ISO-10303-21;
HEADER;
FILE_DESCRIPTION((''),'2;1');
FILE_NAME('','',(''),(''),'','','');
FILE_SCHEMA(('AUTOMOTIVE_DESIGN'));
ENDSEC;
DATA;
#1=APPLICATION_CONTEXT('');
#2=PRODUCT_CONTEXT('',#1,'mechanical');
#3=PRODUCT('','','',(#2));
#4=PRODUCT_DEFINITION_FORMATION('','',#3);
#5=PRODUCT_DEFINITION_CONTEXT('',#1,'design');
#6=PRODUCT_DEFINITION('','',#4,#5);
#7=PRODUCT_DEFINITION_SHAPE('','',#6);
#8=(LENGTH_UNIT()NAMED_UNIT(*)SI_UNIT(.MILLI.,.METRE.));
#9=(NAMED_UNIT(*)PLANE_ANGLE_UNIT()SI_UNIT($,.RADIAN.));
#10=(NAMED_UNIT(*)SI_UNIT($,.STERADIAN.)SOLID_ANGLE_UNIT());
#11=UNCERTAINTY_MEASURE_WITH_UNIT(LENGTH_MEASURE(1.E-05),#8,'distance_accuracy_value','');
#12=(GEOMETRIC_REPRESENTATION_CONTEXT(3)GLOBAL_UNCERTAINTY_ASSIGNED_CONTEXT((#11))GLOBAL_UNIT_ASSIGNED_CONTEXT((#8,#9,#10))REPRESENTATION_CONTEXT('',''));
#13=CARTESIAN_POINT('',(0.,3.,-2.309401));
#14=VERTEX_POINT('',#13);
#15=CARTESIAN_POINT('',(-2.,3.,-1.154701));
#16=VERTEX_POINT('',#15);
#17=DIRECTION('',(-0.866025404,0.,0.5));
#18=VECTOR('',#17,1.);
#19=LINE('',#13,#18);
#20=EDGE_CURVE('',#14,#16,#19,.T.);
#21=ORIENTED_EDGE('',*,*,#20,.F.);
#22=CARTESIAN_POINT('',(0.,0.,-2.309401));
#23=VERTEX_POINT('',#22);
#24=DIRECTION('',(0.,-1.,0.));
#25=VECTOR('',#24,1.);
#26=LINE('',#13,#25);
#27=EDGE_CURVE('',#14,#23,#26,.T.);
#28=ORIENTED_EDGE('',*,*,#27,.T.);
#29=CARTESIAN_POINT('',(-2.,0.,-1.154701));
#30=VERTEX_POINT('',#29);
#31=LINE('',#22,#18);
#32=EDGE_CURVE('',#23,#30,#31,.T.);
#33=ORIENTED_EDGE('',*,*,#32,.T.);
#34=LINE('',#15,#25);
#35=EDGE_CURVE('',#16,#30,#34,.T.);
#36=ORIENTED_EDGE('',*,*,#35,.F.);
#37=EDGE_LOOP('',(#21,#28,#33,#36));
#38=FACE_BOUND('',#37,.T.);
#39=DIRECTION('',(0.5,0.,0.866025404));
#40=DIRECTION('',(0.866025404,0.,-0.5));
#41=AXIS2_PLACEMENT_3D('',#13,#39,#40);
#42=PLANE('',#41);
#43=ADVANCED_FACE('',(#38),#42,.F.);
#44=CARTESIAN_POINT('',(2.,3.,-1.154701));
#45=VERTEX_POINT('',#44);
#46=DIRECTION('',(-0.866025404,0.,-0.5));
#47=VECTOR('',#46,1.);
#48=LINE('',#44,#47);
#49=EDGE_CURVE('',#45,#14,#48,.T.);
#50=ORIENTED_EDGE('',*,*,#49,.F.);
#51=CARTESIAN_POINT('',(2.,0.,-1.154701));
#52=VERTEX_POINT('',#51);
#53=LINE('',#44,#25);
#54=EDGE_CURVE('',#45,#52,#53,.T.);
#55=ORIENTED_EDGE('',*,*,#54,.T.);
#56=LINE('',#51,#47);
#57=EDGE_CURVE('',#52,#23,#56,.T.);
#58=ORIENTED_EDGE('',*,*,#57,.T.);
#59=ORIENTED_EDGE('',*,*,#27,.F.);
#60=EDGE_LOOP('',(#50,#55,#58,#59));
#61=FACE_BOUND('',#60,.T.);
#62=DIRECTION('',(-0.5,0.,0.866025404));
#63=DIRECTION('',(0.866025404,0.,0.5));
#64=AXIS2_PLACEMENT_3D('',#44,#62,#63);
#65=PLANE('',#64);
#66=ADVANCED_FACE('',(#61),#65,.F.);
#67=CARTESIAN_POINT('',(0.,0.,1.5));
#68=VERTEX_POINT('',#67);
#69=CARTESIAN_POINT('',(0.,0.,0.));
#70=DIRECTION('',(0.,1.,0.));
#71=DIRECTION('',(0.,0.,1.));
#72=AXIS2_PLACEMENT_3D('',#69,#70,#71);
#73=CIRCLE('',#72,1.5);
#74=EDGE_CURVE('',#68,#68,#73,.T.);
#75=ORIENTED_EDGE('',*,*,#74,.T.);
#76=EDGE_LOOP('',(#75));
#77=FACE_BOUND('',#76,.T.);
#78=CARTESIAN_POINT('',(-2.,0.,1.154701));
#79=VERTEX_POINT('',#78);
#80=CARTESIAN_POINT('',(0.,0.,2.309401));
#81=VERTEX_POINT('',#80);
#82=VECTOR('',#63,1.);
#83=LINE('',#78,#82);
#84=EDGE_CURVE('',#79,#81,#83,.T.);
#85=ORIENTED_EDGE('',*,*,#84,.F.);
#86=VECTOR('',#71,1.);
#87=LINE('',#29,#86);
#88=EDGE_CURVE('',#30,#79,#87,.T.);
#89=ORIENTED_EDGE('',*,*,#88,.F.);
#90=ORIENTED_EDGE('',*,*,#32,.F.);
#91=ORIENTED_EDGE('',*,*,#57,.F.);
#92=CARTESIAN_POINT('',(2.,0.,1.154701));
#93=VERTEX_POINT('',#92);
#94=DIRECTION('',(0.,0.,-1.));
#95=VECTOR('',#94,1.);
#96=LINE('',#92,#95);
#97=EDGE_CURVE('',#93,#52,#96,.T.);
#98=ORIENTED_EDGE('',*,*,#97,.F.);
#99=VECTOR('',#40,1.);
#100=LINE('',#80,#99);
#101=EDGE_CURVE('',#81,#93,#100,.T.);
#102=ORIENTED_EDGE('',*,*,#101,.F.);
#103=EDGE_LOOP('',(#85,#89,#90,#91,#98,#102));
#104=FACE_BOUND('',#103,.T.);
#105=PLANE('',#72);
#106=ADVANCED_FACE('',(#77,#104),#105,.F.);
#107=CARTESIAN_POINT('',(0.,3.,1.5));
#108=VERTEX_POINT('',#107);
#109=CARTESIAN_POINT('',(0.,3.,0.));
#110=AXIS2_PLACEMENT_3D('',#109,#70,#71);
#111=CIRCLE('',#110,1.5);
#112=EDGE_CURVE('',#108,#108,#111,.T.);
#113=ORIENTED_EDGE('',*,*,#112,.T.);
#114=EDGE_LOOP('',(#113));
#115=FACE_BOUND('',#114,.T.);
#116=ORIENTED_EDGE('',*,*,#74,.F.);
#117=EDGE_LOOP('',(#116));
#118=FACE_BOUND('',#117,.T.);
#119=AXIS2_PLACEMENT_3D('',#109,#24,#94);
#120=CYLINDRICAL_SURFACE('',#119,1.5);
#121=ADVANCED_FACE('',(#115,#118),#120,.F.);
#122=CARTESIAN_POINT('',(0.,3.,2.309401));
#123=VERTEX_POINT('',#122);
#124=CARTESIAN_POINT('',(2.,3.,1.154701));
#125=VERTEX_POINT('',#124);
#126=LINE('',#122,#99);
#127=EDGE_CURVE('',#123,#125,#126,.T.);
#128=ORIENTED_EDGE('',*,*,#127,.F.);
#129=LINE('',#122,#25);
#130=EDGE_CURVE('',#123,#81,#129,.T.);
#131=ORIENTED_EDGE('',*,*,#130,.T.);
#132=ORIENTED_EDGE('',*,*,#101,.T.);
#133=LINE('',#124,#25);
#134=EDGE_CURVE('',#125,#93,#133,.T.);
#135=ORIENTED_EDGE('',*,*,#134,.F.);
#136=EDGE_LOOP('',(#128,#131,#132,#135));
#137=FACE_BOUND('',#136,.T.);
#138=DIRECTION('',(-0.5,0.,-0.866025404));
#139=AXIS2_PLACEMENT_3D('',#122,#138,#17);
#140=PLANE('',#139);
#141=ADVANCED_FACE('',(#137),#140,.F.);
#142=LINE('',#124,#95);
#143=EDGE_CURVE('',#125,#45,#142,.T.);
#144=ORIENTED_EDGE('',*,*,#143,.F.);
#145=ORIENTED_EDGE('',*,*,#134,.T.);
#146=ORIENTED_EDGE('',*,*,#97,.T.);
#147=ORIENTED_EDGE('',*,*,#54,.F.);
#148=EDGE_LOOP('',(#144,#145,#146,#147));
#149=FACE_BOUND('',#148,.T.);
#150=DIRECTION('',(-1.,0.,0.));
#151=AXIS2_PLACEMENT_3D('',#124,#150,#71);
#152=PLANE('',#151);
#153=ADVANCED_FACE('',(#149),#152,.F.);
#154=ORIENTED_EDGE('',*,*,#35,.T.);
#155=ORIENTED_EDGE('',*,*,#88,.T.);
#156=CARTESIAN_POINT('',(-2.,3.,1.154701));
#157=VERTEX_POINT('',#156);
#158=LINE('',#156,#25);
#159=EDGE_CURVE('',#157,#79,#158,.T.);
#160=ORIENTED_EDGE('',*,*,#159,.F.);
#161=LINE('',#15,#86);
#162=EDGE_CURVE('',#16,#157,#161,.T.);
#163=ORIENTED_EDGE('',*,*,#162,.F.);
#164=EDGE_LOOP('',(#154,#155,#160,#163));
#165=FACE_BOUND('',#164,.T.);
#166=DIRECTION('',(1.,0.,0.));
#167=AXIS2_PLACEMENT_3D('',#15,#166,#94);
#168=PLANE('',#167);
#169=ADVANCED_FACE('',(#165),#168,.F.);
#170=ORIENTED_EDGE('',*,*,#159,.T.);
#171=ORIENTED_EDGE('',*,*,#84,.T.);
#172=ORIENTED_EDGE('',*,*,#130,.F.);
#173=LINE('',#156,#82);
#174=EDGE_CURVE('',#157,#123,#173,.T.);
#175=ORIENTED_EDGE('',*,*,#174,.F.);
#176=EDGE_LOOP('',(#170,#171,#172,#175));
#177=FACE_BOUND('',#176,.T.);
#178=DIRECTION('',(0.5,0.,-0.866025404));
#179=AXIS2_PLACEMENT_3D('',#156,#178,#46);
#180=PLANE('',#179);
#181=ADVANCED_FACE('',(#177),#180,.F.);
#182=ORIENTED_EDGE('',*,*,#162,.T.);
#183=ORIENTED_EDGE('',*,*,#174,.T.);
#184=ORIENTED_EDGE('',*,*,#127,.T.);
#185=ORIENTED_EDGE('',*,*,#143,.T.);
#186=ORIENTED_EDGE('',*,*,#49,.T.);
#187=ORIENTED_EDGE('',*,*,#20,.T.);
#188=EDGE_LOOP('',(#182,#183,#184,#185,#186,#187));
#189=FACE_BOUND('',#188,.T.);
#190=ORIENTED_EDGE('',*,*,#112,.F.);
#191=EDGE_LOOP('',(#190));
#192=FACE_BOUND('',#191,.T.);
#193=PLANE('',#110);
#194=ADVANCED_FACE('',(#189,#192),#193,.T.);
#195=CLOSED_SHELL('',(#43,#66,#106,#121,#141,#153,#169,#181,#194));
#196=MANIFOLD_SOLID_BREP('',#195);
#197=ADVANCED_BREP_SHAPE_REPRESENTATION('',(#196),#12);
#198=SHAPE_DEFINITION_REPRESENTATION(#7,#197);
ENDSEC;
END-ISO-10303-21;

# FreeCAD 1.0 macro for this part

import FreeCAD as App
import Part
import Sketcher
Q = App.Units.Quantity


def add_polygon(sketch, points):
    """Adds a closed chain of lines whose ends are joined by coincident constraints."""
    first, n = sketch.GeometryCount, len(points)
    for a, b in zip(points, points[1:] + points[:1]):
        sketch.addGeometry(Part.LineSegment(App.Vector(*a, 0), App.Vector(*b, 0)), False)
    for i in range(n):
        sketch.addConstraint(Sketcher.Constraint("Coincident", first + i, 2, first + (i + 1) % n, 1))

doc = App.newDocument("Part")
body = doc.addObject("PartDesign::Body", "Body")

# Sketch on XZ plane
sketch1 = doc.addObject("Sketcher::SketchObject", "Sketch")
body.addObject(sketch1)
sketch1.AttachmentSupport = (doc.XZ_Plane, [""])
sketch1.MapMode = "FlatFace"
add_polygon(sketch1, [(0, -2.309401), (-2, -1.154701), (-2, 1.154701), (0, 2.309401), (2, 1.154701), (2, -1.154701)])  # lines 0-5
sketch1.addGeometry(Part.Circle(App.Vector(0, 0, 0), App.Vector(0, 0, 1), 1.5), False)  # 6
sketch1.addConstraint([
    Sketcher.Constraint("Vertical", 1),
    Sketcher.Constraint("Vertical", 4),
    Sketcher.Constraint("Coincident", 6, 3, -1, 1),
    Sketcher.Constraint("Symmetric", 0, 2, 3, 2, -1, 1),
    Sketcher.Constraint("Symmetric", 2, 2, 5, 2, -1, 1),
    Sketcher.Constraint("PointOnObject", 2, 2, -2),
    Sketcher.Constraint("Parallel", 2, 5),
    Sketcher.Constraint("Horizontal", 1, 2, 3, 2),
    Sketcher.Constraint("Diameter", 6, 3.0),
    Sketcher.Constraint("Angle", 0, Q("150 deg")),
    Sketcher.Constraint("DistanceX", 0, 2, -1, 1, 2.0),
    Sketcher.Constraint("DistanceY", 1, 1, 1, 2, 2.309401),
])
pad1 = doc.addObject("PartDesign::Pad", "Pad")
body.addObject(pad1)
pad1.Profile = sketch1
pad1.Length = 3
pad1.Reversed = True

doc.recompute()
